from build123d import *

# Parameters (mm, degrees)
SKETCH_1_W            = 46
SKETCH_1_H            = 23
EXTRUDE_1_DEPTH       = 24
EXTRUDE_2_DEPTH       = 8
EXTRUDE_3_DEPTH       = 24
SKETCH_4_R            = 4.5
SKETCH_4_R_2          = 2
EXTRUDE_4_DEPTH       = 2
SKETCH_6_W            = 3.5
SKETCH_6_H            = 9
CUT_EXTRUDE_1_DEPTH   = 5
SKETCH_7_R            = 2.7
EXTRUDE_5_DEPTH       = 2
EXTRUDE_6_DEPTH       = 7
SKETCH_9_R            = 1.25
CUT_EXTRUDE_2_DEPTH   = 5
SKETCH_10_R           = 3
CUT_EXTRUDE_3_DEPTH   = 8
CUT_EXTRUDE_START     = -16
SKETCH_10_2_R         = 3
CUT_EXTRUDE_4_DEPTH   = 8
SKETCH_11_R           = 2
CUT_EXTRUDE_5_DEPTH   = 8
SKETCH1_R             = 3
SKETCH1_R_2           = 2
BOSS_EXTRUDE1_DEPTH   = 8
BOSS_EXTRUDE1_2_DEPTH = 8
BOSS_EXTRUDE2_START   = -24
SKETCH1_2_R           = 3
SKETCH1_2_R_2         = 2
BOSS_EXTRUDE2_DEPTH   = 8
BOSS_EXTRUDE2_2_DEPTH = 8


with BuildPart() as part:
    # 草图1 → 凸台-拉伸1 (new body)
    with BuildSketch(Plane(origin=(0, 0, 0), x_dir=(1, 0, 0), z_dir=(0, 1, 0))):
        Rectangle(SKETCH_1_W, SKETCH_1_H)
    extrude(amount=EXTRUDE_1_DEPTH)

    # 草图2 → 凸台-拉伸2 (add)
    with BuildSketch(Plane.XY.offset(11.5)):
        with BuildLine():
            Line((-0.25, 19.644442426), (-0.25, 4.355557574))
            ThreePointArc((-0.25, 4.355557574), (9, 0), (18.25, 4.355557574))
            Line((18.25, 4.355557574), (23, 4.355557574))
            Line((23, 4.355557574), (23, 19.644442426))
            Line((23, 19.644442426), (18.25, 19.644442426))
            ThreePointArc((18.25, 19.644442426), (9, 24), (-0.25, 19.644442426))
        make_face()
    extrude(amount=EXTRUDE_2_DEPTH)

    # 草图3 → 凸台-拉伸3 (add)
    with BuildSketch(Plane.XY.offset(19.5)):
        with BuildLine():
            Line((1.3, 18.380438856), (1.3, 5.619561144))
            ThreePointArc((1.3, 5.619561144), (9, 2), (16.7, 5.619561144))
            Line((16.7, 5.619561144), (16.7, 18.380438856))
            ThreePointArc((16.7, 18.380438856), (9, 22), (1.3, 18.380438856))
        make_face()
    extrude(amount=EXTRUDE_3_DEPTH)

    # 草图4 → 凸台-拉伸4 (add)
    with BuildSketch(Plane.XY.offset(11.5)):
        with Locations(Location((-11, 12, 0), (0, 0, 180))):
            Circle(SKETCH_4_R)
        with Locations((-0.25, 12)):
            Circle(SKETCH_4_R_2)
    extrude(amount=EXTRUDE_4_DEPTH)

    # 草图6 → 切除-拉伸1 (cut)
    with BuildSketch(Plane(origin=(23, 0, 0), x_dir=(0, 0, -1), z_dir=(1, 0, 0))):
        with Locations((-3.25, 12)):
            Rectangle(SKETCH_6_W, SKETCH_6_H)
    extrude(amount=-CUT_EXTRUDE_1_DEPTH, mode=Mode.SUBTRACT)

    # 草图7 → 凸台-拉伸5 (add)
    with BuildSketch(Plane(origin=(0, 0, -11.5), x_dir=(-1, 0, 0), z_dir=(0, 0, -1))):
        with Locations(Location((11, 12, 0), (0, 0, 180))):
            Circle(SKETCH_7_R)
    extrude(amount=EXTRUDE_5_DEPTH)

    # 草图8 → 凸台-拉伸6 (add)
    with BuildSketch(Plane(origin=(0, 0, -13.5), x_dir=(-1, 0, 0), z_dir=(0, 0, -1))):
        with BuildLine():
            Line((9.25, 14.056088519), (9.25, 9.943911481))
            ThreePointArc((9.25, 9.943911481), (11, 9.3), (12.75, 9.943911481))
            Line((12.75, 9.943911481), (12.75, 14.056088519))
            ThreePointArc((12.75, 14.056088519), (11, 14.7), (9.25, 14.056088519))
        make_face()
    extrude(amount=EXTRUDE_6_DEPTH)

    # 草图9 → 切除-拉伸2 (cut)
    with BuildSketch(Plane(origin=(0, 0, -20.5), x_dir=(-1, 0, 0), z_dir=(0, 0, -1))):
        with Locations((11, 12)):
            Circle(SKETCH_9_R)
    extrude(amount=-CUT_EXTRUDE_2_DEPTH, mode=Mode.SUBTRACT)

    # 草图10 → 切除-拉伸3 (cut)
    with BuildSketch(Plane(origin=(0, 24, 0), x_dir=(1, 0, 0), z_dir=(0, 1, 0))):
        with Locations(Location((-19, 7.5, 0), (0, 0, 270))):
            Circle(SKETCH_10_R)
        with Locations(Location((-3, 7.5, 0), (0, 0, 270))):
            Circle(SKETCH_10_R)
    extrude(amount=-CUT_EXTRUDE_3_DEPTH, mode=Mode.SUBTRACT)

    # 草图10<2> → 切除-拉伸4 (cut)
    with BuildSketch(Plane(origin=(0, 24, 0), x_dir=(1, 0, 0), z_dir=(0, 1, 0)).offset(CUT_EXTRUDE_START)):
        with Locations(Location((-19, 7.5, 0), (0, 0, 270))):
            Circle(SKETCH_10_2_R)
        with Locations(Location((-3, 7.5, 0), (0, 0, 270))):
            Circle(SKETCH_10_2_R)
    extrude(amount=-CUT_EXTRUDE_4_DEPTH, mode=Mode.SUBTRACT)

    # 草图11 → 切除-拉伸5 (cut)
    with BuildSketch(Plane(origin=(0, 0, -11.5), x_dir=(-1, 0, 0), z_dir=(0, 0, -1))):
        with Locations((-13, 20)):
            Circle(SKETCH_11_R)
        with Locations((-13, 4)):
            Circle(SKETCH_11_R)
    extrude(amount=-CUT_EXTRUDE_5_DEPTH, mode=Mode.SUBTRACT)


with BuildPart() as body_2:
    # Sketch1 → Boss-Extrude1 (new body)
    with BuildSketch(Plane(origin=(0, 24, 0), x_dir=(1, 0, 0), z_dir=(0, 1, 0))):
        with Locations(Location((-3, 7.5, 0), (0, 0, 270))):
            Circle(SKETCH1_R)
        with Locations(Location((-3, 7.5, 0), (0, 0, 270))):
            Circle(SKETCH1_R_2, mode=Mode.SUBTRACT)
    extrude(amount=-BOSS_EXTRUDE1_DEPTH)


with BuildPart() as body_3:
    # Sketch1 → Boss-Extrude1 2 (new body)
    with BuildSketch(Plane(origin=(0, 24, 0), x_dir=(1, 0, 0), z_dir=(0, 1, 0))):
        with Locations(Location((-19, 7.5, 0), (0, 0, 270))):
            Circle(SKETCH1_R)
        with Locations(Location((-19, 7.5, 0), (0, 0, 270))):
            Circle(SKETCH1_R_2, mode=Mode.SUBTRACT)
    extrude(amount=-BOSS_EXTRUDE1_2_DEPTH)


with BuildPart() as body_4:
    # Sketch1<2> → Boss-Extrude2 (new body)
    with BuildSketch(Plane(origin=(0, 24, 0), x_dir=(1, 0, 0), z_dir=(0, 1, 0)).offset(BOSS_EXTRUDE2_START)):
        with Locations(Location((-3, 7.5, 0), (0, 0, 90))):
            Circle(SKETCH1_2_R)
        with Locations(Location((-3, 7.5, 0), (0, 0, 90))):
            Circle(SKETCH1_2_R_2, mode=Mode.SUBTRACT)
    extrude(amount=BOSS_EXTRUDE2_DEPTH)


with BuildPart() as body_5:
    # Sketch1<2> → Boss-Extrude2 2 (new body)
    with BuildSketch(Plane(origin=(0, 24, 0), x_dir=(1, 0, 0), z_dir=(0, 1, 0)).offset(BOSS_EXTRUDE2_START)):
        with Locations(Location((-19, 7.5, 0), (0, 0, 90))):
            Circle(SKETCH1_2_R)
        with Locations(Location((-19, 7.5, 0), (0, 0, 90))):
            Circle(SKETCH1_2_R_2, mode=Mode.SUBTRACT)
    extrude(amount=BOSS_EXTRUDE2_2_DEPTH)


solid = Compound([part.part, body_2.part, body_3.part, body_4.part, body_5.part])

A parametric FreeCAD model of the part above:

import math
import FreeCAD as App
import Part
import Sketcher


def add_polygon(sketch, points):
    """Adds a closed chain of lines whose ends are joined by coincident constraints."""
    first, n = sketch.GeometryCount, len(points)
    for a, b in zip(points, points[1:] + points[:1]):
        sketch.addGeometry(Part.LineSegment(App.Vector(*a, 0), App.Vector(*b, 0)), False)
    for i in range(n):
        sketch.addConstraint(Sketcher.Constraint("Coincident", first + i, 2, first + (i + 1) % n, 1))

doc = App.newDocument("Part")
params = doc.addObject("Spreadsheet::Sheet", "Params")
for row, (alias, value) in enumerate([
    ("sketch1_width", "46 mm"),
    ("sketch1_height", "23 mm"),
    ("pad1_length", "24 mm"),
    ("sketch2_radius", "12 mm"),
    ("sketch2_width", "4.75 mm"),
    ("pad2_length", "8 mm"),
    ("sketch3_radius", "10 mm"),
    ("pad3_length", "24 mm"),
    ("sketch4_diameter", "9 mm"),
    ("sketch4_diameter2", "4 mm"),
    ("pad4_length", "2 mm"),
    ("sketch5_width", "9 mm"),
    ("sketch5_height", "3.5 mm"),
    ("pocket1_length", "5 mm"),
    ("sketch6_diameter", "5.4 mm"),
    ("pad5_length", "2 mm"),
    ("sketch7_radius", "2.7 mm"),
    ("pad6_length", "7 mm"),
    ("sketch8_diameter", "2.5 mm"),
    ("pocket2_length", "5 mm"),
    ("sketch9_diameter", "6 mm"),
    ("pocket3_length", "8 mm"),
    ("sketch10_diameter", "6 mm"),
    ("pocket4_length", "8 mm"),
    ("sketch11_diameter", "4 mm"),
    ("pocket5_length", "8 mm"),
    ("sketch12_diameter", "6 mm"),
    ("sketch12_diameter2", "4 mm"),
    ("pad7_length", "8 mm"),
    ("sketch13_diameter", "6 mm"),
    ("sketch13_diameter2", "4 mm"),
    ("pad8_length", "8 mm"),
    ("sketch14_diameter", "6 mm"),
    ("sketch14_diameter2", "4 mm"),
    ("pad9_length", "8 mm"),
    ("sketch15_diameter", "6 mm"),
    ("sketch15_diameter2", "4 mm"),
    ("pad10_length", "8 mm"),
], start=1):
    params.set(f"A{row}", alias)
    params.set(f"B{row}", "=" + value)
    params.setAlias(f"B{row}", alias)

body = doc.addObject("PartDesign::Body", "Body")

# Sketch on XZ plane
sketch1 = body.newObject("Sketcher::SketchObject", "Sketch")
sketch1.AttachmentSupport = (doc.getObject("XZ_Plane"), [""])
sketch1.MapMode = "FlatFace"
add_polygon(sketch1, [(-23, -11.5), (-23, 11.5), (23, 11.5), (23, -11.5)])  # lines 0-3
sketch1.addConstraint([
    Sketcher.Constraint("Vertical", 0),
    Sketcher.Constraint("Horizontal", 1),
    Sketcher.Constraint("Vertical", 2),
    Sketcher.Constraint("Horizontal", 3),
    Sketcher.Constraint("Symmetric", 0, 2, 2, 2, -1, 1),
    Sketcher.Constraint("DistanceX", 1, 1, 1, 2, 46.0),
    Sketcher.Constraint("DistanceY", 0, 1, 0, 2, 23.0),
])
sketch1.setExpression("Constraints[9]", "Params.sketch1_width")
sketch1.setExpression("Constraints[10]", "Params.sketch1_height")
pad1 = body.newObject("PartDesign::Pad", "Pad")
pad1.Profile = sketch1
pad1.setExpression("Length", "Params.pad1_length")
pad1.Reversed = True

# Sketch on XY plane
sketch2 = body.newObject("Sketcher::SketchObject", "Sketch001")
sketch2.AttachmentSupport = (doc.getObject("XY_Plane"), [""])
sketch2.MapMode = "FlatFace"
sketch2.AttachmentOffset = App.Placement(App.Vector(0, 0, 11.5), App.Rotation())
sketch2.addGeometry([
    Part.LineSegment(App.Vector(-0.25, 19.644442, 0), App.Vector(-0.25, 4.355558, 0)),  # 0
    Part.ArcOfCircle(Part.Circle(App.Vector(9, 12, 0), App.Vector(0, 0, 1), 12), math.radians(-140.428781), math.radians(-39.571219)),  # 1
    Part.LineSegment(App.Vector(18.25, 4.355558, 0), App.Vector(23, 4.355558, 0)),  # 2
    Part.LineSegment(App.Vector(23, 4.355558, 0), App.Vector(23, 19.644442, 0)),  # 3
    Part.LineSegment(App.Vector(23, 19.644442, 0), App.Vector(18.25, 19.644442, 0)),  # 4
    Part.ArcOfCircle(Part.Circle(App.Vector(9, 12, 0), App.Vector(0, 0, 1), 12), math.radians(39.571219), math.radians(140.428781)),  # 5
], False)
sketch2.addConstraint([
    Sketcher.Constraint("Coincident", 0, 2, 1, 1),
    Sketcher.Constraint("Coincident", 1, 2, 2, 1),
    Sketcher.Constraint("Coincident", 2, 2, 3, 1),
    Sketcher.Constraint("Coincident", 3, 2, 4, 1),
    Sketcher.Constraint("Coincident", 4, 2, 5, 1),
    Sketcher.Constraint("Coincident", 5, 2, 0, 1),
    Sketcher.Constraint("Vertical", 0),
    Sketcher.Constraint("Horizontal", 2),
    Sketcher.Constraint("Vertical", 3),
    Sketcher.Constraint("Horizontal", 4),
    Sketcher.Constraint("Coincident", 5, 3, 1, 3),
    Sketcher.Constraint("Equal", 1, 5),
    Sketcher.Constraint("Horizontal", 0, 2, 1, 2),
    Sketcher.Constraint("Horizontal", 4, 2, 5, 2),
    Sketcher.Constraint("Radius", 1, 12.0),
    Sketcher.Constraint("DistanceX", -1, 1, 1, 3, 9.0),
    Sketcher.Constraint("DistanceY", -1, 1, 1, 3, 12.0),
    Sketcher.Constraint("DistanceX", -1, 1, 2, 2, 23.0),
    Sketcher.Constraint("DistanceX", 2, 1, 2, 2, 4.75),
])
sketch2.setExpression("Constraints[14]", "Params.sketch2_radius")
sketch2.setExpression("Constraints[18]", "Params.sketch2_width")
pad2 = body.newObject("PartDesign::Pad", "Pad001")
pad2.Profile = sketch2
pad2.setExpression("Length", "Params.pad2_length")

# Sketch on XY plane
sketch3 = body.newObject("Sketcher::SketchObject", "Sketch002")
sketch3.AttachmentSupport = (doc.getObject("XY_Plane"), [""])
sketch3.MapMode = "FlatFace"
sketch3.AttachmentOffset = App.Placement(App.Vector(0, 0, 19.5), App.Rotation())
sketch3.addGeometry([
    Part.LineSegment(App.Vector(1.3, 18.380439, 0), App.Vector(1.3, 5.619561, 0)),
    Part.ArcOfCircle(Part.Circle(App.Vector(9, 12, 0), App.Vector(0, 0, 1), 10), math.radians(-140.353889), math.radians(-39.646111)),
    Part.LineSegment(App.Vector(16.7, 5.619561, 0), App.Vector(16.7, 18.380439, 0)),
    Part.ArcOfCircle(Part.Circle(App.Vector(9, 12, 0), App.Vector(0, 0, 1), 10), math.radians(39.646111), math.radians(140.353889)),
], False)
sketch3.addConstraint([
    Sketcher.Constraint("Coincident", 0, 2, 1, 1),
    Sketcher.Constraint("Coincident", 1, 2, 2, 1),
    Sketcher.Constraint("Coincident", 2, 2, 3, 1),
    Sketcher.Constraint("Coincident", 3, 2, 0, 1),
    Sketcher.Constraint("Vertical", 0),
    Sketcher.Constraint("Vertical", 2),
    Sketcher.Constraint("Coincident", 3, 3, 1, 3),
    Sketcher.Constraint("Equal", 1, 3),
    Sketcher.Constraint("Horizontal", 0, 2, 1, 2),
    Sketcher.Constraint("Radius", 1, 10.0),
    Sketcher.Constraint("DistanceX", -1, 1, 1, 3, 9.0),
    Sketcher.Constraint("DistanceY", -1, 1, 1, 3, 12.0),
    Sketcher.Constraint("DistanceX", -1, 1, 0, 2, 1.3),
])
sketch3.setExpression("Constraints[9]", "Params.sketch3_radius")
pad3 = body.newObject("PartDesign::Pad", "Pad002")
pad3.Profile = sketch3
pad3.setExpression("Length", "Params.pad3_length")

# Sketch on XY plane
sketch4 = body.newObject("Sketcher::SketchObject", "Sketch003")
sketch4.AttachmentSupport = (doc.getObject("XY_Plane"), [""])
sketch4.MapMode = "FlatFace"
sketch4.AttachmentOffset = App.Placement(App.Vector(0, 0, 11.5), App.Rotation())
sketch4.addGeometry([
    Part.Circle(App.Vector(-11, 12, 0), App.Vector(0, 0, 1), 4.5),
    Part.Circle(App.Vector(-0.25, 12, 0), App.Vector(0, 0, 1), 2),
], False)
sketch4.addConstraint([
    Sketcher.Constraint("Horizontal", 0, 3, 1, 3),
    Sketcher.Constraint("Diameter", 0, 9.0),
    Sketcher.Constraint("Diameter", 1, 4.0),
    Sketcher.Constraint("DistanceX", 0, 3, -1, 1, 11.0),
    Sketcher.Constraint("DistanceY", -1, 1, 0, 3, 12.0),
    Sketcher.Constraint("DistanceX", 1, 3, -1, 1, 0.25),
])
sketch4.setExpression("Constraints[1]", "Params.sketch4_diameter")
sketch4.setExpression("Constraints[2]", "Params.sketch4_diameter2")
pad4 = body.newObject("PartDesign::Pad", "Pad003")
pad4.Profile = sketch4
pad4.setExpression("Length", "Params.pad4_length")

# Sketch on YZ plane
sketch5 = body.newObject("Sketcher::SketchObject", "Sketch004")
sketch5.AttachmentSupport = (doc.getObject("YZ_Plane"), [""])
sketch5.MapMode = "FlatFace"
sketch5.AttachmentOffset = App.Placement(App.Vector(0, 0, 23), App.Rotation())
add_polygon(sketch5, [(16.5, 5), (7.5, 5), (7.5, 1.5), (16.5, 1.5)])  # lines 0-3
sketch5.addConstraint([
    Sketcher.Constraint("Horizontal", 0),
    Sketcher.Constraint("Vertical", 1),
    Sketcher.Constraint("Horizontal", 2),
    Sketcher.Constraint("Vertical", 3),
    Sketcher.Constraint("DistanceX", 0, 2, 0, 1, 9.0),
    Sketcher.Constraint("DistanceY", 1, 2, 1, 1, 3.5),
    Sketcher.Constraint("DistanceY", -1, 1, 0, 2, 5.0),
    Sketcher.Constraint("DistanceX", -1, 1, 0, 2, 7.5),
])
sketch5.setExpression("Constraints[8]", "Params.sketch5_width")
sketch5.setExpression("Constraints[9]", "Params.sketch5_height")
pocket1 = body.newObject("PartDesign::Pocket", "Pocket")
pocket1.Profile = sketch5
pocket1.setExpression("Length", "Params.pocket1_length")

# Sketch on XY plane
sketch6 = body.newObject("Sketcher::SketchObject", "Sketch005")
sketch6.AttachmentSupport = (doc.getObject("XY_Plane"), [""])
sketch6.MapMode = "FlatFace"
sketch6.AttachmentOffset = App.Placement(App.Vector(0, 0, -11.5), App.Rotation())
sketch6.addGeometry(Part.Circle(App.Vector(-11, 12, 0), App.Vector(0, 0, 1), 2.7), False)
sketch6.addConstraint([
    Sketcher.Constraint("Diameter", 0, 5.4),
    Sketcher.Constraint("DistanceX", 0, 3, -1, 1, 11.0),
    Sketcher.Constraint("DistanceY", -1, 1, 0, 3, 12.0),
])
sketch6.setExpression("Constraints[0]", "Params.sketch6_diameter")
pad5 = body.newObject("PartDesign::Pad", "Pad004")
pad5.Profile = sketch6
pad5.setExpression("Length", "Params.pad5_length")
pad5.Reversed = True

# Sketch on XY plane
sketch7 = body.newObject("Sketcher::SketchObject", "Sketch006")
sketch7.AttachmentSupport = (doc.getObject("XY_Plane"), [""])
sketch7.MapMode = "FlatFace"
sketch7.AttachmentOffset = App.Placement(App.Vector(0, 0, -13.5), App.Rotation())
sketch7.addGeometry([
    Part.LineSegment(App.Vector(-9.25, 14.056089, 0), App.Vector(-9.25, 9.943911, 0)),
    Part.ArcOfCircle(Part.Circle(App.Vector(-11, 12, 0), App.Vector(0, 0, 1), 2.7), math.radians(-130.402125), math.radians(-49.597875)),
    Part.LineSegment(App.Vector(-12.75, 9.943911, 0), App.Vector(-12.75, 14.056089, 0)),
    Part.ArcOfCircle(Part.Circle(App.Vector(-11, 12, 0), App.Vector(0, 0, 1), 2.7), math.radians(49.597875), math.radians(130.402125)),
], False)
sketch7.addConstraint([
    Sketcher.Constraint("Coincident", 0, 2, 1, 2),
    Sketcher.Constraint("Coincident", 1, 1, 2, 1),
    Sketcher.Constraint("Coincident", 2, 2, 3, 2),
    Sketcher.Constraint("Coincident", 3, 1, 0, 1),
    Sketcher.Constraint("Vertical", 0),
    Sketcher.Constraint("Vertical", 2),
    Sketcher.Constraint("Coincident", 3, 3, 1, 3),
    Sketcher.Constraint("Equal", 1, 3),
    Sketcher.Constraint("Horizontal", 0, 2, 1, 1),
    Sketcher.Constraint("Radius", 1, 2.7),
    Sketcher.Constraint("DistanceX", 1, 3, -1, 1, 11.0),
    Sketcher.Constraint("DistanceY", -1, 1, 1, 3, 12.0),
    Sketcher.Constraint("DistanceX", 1, 1, 0, 2, 3.5),
])
sketch7.setExpression("Constraints[9]", "Params.sketch7_radius")
pad6 = body.newObject("PartDesign::Pad", "Pad005")
pad6.Profile = sketch7
pad6.setExpression("Length", "Params.pad6_length")
pad6.Reversed = True

# Sketch on XY plane
sketch8 = body.newObject("Sketcher::SketchObject", "Sketch007")
sketch8.AttachmentSupport = (doc.getObject("XY_Plane"), [""])
sketch8.MapMode = "FlatFace"
sketch8.AttachmentOffset = App.Placement(App.Vector(0, 0, -20.5), App.Rotation())
sketch8.addGeometry(Part.Circle(App.Vector(-11, 12, 0), App.Vector(0, 0, 1), 1.25), False)
sketch8.addConstraint([
    Sketcher.Constraint("Diameter", 0, 2.5),
    Sketcher.Constraint("DistanceX", 0, 3, -1, 1, 11.0),
    Sketcher.Constraint("DistanceY", -1, 1, 0, 3, 12.0),
])
sketch8.setExpression("Constraints[0]", "Params.sketch8_diameter")
pocket2 = body.newObject("PartDesign::Pocket", "Pocket001")
pocket2.Profile = sketch8
pocket2.setExpression("Length", "Params.pocket2_length")
pocket2.Reversed = True

# Sketch on XZ plane
sketch9 = body.newObject("Sketcher::SketchObject", "Sketch008")
sketch9.AttachmentSupport = (doc.getObject("XZ_Plane"), [""])
sketch9.MapMode = "FlatFace"
sketch9.AttachmentOffset = App.Placement(App.Vector(0, 0, -24), App.Rotation())
sketch9.addGeometry([
    Part.Circle(App.Vector(-19, -7.5, 0), App.Vector(0, 0, 1), 3),
    Part.Circle(App.Vector(-3, -7.5, 0), App.Vector(0, 0, 1), 3),
], False)
sketch9.addConstraint([
    Sketcher.Constraint("Equal", 0, 1),
    Sketcher.Constraint("Horizontal", 0, 3, 1, 3),
    Sketcher.Constraint("Diameter", 0, 6.0),
    Sketcher.Constraint("DistanceX", 0, 3, -1, 1, 19.0),
    Sketcher.Constraint("DistanceX", 1, 3, -1, 1, 3.0),
    Sketcher.Constraint("DistanceY", 0, 3, -1, 1, 7.5),
])
sketch9.setExpression("Constraints[2]", "Params.sketch9_diameter")
pocket3 = body.newObject("PartDesign::Pocket", "Pocket002")
pocket3.Profile = sketch9
pocket3.setExpression("Length", "Params.pocket3_length")
pocket3.Reversed = True

# Sketch on XZ plane
sketch10 = body.newObject("Sketcher::SketchObject", "Sketch009")
sketch10.AttachmentSupport = (doc.getObject("XZ_Plane"), [""])
sketch10.MapMode = "FlatFace"
sketch10.AttachmentOffset = App.Placement(App.Vector(0, 0, -8), App.Rotation())
sketch10.addGeometry([
    Part.Circle(App.Vector(-19, -7.5, 0), App.Vector(0, 0, 1), 3),
    Part.Circle(App.Vector(-3, -7.5, 0), App.Vector(0, 0, 1), 3),
], False)
sketch10.addConstraint([
    Sketcher.Constraint("Equal", 0, 1),
    Sketcher.Constraint("Horizontal", 0, 3, 1, 3),
    Sketcher.Constraint("Diameter", 0, 6.0),
    Sketcher.Constraint("DistanceX", 0, 3, -1, 1, 19.0),
    Sketcher.Constraint("DistanceX", 1, 3, -1, 1, 3.0),
    Sketcher.Constraint("DistanceY", 0, 3, -1, 1, 7.5),
])
sketch10.setExpression("Constraints[2]", "Params.sketch10_diameter")
pocket4 = body.newObject("PartDesign::Pocket", "Pocket003")
pocket4.Profile = sketch10
pocket4.setExpression("Length", "Params.pocket4_length")
pocket4.Reversed = True

# Sketch on XY plane
sketch11 = body.newObject("Sketcher::SketchObject", "Sketch010")
sketch11.AttachmentSupport = (doc.getObject("XY_Plane"), [""])
sketch11.MapMode = "FlatFace"
sketch11.AttachmentOffset = App.Placement(App.Vector(0, 0, -11.5), App.Rotation())
sketch11.addGeometry([
    Part.Circle(App.Vector(13, 20, 0), App.Vector(0, 0, 1), 2),
    Part.Circle(App.Vector(13, 4, 0), App.Vector(0, 0, 1), 2),
], False)
sketch11.addConstraint([
    Sketcher.Constraint("Equal", 0, 1),
    Sketcher.Constraint("Vertical", 0, 3, 1, 3),
    Sketcher.Constraint("Diameter", 0, 4.0),
    Sketcher.Constraint("DistanceX", -1, 1, 0, 3, 13.0),
    Sketcher.Constraint("DistanceY", -1, 1, 0, 3, 20.0),
    Sketcher.Constraint("DistanceY", -1, 1, 1, 3, 4.0),
])
sketch11.setExpression("Constraints[2]", "Params.sketch11_diameter")
pocket5 = body.newObject("PartDesign::Pocket", "Pocket004")
pocket5.Profile = sketch11
pocket5.setExpression("Length", "Params.pocket5_length")
pocket5.Reversed = True
body2 = doc.addObject("PartDesign::Body", "Body001")

# Sketch on XZ plane
sketch12 = body2.newObject("Sketcher::SketchObject", "Sketch011")
sketch12.AttachmentSupport = (doc.getObject("XZ_Plane001"), [""])
sketch12.MapMode = "FlatFace"
sketch12.AttachmentOffset = App.Placement(App.Vector(0, 0, -24), App.Rotation())
sketch12.addGeometry([
    Part.Circle(App.Vector(-3, -7.5, 0), App.Vector(0, 0, 1), 3),
    Part.Circle(App.Vector(-3, -7.5, 0), App.Vector(0, 0, 1), 2),
], False)
sketch12.addConstraint([
    Sketcher.Constraint("Coincident", 1, 3, 0, 3),
    Sketcher.Constraint("Diameter", 0, 6.0),
    Sketcher.Constraint("Diameter", 1, 4.0),
    Sketcher.Constraint("DistanceX", 0, 3, -1, 1, 3.0),
    Sketcher.Constraint("DistanceY", 0, 3, -1, 1, 7.5),
])
sketch12.setExpression("Constraints[1]", "Params.sketch12_diameter")
sketch12.setExpression("Constraints[2]", "Params.sketch12_diameter2")
pad7 = body2.newObject("PartDesign::Pad", "Pad006")
pad7.Profile = sketch12
pad7.setExpression("Length", "Params.pad7_length")
body3 = doc.addObject("PartDesign::Body", "Body002")

# Sketch on XZ plane
sketch13 = body3.newObject("Sketcher::SketchObject", "Sketch012")
sketch13.AttachmentSupport = (doc.getObject("XZ_Plane002"), [""])
sketch13.MapMode = "FlatFace"
sketch13.AttachmentOffset = App.Placement(App.Vector(0, 0, -24), App.Rotation())
sketch13.addGeometry([
    Part.Circle(App.Vector(-19, -7.5, 0), App.Vector(0, 0, 1), 3),
    Part.Circle(App.Vector(-19, -7.5, 0), App.Vector(0, 0, 1), 2),
], False)
sketch13.addConstraint([
    Sketcher.Constraint("Coincident", 1, 3, 0, 3),
    Sketcher.Constraint("Diameter", 0, 6.0),
    Sketcher.Constraint("Diameter", 1, 4.0),
    Sketcher.Constraint("DistanceX", 0, 3, -1, 1, 19.0),
    Sketcher.Constraint("DistanceY", 0, 3, -1, 1, 7.5),
])
sketch13.setExpression("Constraints[1]", "Params.sketch13_diameter")
sketch13.setExpression("Constraints[2]", "Params.sketch13_diameter2")
pad8 = body3.newObject("PartDesign::Pad", "Pad007")
pad8.Profile = sketch13
pad8.setExpression("Length", "Params.pad8_length")
body4 = doc.addObject("PartDesign::Body", "Body003")

# Sketch on XZ plane
sketch14 = body4.newObject("Sketcher::SketchObject", "Sketch013")
sketch14.AttachmentSupport = (doc.getObject("XZ_Plane003"), [""])
sketch14.MapMode = "FlatFace"
sketch14.addGeometry([
    Part.Circle(App.Vector(-3, -7.5, 0), App.Vector(0, 0, 1), 3),
    Part.Circle(App.Vector(-3, -7.5, 0), App.Vector(0, 0, 1), 2),
], False)
sketch14.addConstraint([
    Sketcher.Constraint("Coincident", 1, 3, 0, 3),
    Sketcher.Constraint("Diameter", 0, 6.0),
    Sketcher.Constraint("Diameter", 1, 4.0),
    Sketcher.Constraint("DistanceX", 0, 3, -1, 1, 3.0),
    Sketcher.Constraint("DistanceY", 0, 3, -1, 1, 7.5),
])
sketch14.setExpression("Constraints[1]", "Params.sketch14_diameter")
sketch14.setExpression("Constraints[2]", "Params.sketch14_diameter2")
pad9 = body4.newObject("PartDesign::Pad", "Pad008")
pad9.Profile = sketch14
pad9.setExpression("Length", "Params.pad9_length")
pad9.Reversed = True
body5 = doc.addObject("PartDesign::Body", "Body004")

# Sketch on XZ plane
sketch15 = body5.newObject("Sketcher::SketchObject", "Sketch014")
sketch15.AttachmentSupport = (doc.getObject("XZ_Plane004"), [""])
sketch15.MapMode = "FlatFace"
sketch15.addGeometry([
    Part.Circle(App.Vector(-19, -7.5, 0), App.Vector(0, 0, 1), 3),
    Part.Circle(App.Vector(-19, -7.5, 0), App.Vector(0, 0, 1), 2),
], False)
sketch15.addConstraint([
    Sketcher.Constraint("Coincident", 1, 3, 0, 3),
    Sketcher.Constraint("Diameter", 0, 6.0),
    Sketcher.Constraint("Diameter", 1, 4.0),
    Sketcher.Constraint("DistanceX", 0, 3, -1, 1, 19.0),
    Sketcher.Constraint("DistanceY", 0, 3, -1, 1, 7.5),
])
sketch15.setExpression("Constraints[1]", "Params.sketch15_diameter")
sketch15.setExpression("Constraints[2]", "Params.sketch15_diameter2")
pad10 = body5.newObject("PartDesign::Pad", "Pad009")
pad10.Profile = sketch15
pad10.setExpression("Length", "Params.pad10_length")
pad10.Reversed = True

doc.recompute()
